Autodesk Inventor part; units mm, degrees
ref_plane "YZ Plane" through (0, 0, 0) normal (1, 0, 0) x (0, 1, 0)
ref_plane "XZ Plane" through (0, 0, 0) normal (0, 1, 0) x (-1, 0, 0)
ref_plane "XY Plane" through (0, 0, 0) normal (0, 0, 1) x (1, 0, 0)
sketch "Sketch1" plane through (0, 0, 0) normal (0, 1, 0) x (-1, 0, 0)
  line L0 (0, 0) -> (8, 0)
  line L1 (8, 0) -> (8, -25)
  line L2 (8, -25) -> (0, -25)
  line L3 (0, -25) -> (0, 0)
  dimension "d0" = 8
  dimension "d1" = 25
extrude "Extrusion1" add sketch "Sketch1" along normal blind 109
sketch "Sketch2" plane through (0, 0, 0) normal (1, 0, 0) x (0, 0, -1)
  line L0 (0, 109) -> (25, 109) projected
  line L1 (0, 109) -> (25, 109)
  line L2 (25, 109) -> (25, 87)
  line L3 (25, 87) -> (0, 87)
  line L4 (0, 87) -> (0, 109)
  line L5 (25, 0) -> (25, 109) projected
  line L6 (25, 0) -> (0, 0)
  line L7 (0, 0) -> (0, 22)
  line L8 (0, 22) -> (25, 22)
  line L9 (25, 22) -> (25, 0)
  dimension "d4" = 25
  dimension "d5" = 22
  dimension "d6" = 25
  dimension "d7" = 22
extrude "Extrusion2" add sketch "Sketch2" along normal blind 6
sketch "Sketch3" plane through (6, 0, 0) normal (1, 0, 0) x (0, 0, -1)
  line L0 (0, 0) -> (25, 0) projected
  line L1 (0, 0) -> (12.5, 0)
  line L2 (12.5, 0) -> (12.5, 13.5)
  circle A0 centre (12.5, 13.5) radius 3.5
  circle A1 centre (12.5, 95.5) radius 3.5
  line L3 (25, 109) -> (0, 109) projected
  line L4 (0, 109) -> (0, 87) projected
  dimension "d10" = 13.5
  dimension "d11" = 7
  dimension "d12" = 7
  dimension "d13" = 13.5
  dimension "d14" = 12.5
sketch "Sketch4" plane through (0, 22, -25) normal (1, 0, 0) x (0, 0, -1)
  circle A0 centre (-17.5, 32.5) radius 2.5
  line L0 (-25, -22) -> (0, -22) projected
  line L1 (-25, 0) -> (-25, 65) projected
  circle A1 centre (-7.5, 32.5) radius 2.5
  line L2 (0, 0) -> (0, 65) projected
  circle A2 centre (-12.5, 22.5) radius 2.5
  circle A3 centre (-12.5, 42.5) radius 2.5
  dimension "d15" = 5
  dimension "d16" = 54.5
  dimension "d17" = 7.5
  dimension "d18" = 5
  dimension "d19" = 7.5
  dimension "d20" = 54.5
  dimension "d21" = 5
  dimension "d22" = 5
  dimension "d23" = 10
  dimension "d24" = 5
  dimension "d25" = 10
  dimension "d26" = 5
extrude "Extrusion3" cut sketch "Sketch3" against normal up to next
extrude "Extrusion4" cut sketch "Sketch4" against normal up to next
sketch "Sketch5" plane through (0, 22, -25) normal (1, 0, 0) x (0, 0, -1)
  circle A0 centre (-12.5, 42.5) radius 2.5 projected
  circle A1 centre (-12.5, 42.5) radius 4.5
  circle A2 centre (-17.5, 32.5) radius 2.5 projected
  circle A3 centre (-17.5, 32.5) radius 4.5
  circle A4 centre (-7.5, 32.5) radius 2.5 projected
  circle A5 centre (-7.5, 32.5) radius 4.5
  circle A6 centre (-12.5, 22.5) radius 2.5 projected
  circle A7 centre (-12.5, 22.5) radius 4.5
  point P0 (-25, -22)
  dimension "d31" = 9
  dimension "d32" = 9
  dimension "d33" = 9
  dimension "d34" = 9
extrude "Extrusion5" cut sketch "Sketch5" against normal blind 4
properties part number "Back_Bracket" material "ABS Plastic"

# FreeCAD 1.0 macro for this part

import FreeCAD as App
import Part
import Sketcher
from FreeCAD import Vector

doc = App.newDocument("Part")
body = doc.addObject("PartDesign::Body", "Body")

# Sketch on XZ plane
sketch1 = doc.addObject("Sketcher::SketchObject", "Sketch")
body.addObject(sketch1)
sketch1.AttachmentSupport = (doc.XZ_Plane, [""])
sketch1.MapMode = "FlatFace"
sketch1.addGeometry([
    Part.LineSegment(Vector(-8, 0, 0), Vector(0, 0, 0)),
    Part.LineSegment(Vector(0, 0, 0), Vector(0, -25, 0)),
    Part.LineSegment(Vector(0, -25, 0), Vector(-8, -25, 0)),
    Part.LineSegment(Vector(-8, -25, 0), Vector(-8, 0, 0)),
], False)
sketch1.addConstraint([
    Sketcher.Constraint("Coincident", 0, 2, 1, 1),
    Sketcher.Constraint("Coincident", 1, 2, 2, 1),
    Sketcher.Constraint("Coincident", 2, 2, 3, 1),
    Sketcher.Constraint("Coincident", 3, 2, 0, 1),
    Sketcher.Constraint("Horizontal", 0),
    Sketcher.Constraint("Vertical", 1),
    Sketcher.Constraint("Horizontal", 2),
    Sketcher.Constraint("Vertical", 3),
    Sketcher.Constraint("Coincident", 0, 2, -1, 1),
    Sketcher.Constraint("DistanceX", 0, 1, 0, 2, 8.0),
    Sketcher.Constraint("DistanceY", 1, 2, 1, 1, 25.0),
])
pad1 = doc.addObject("PartDesign::Pad", "Pad")
body.addObject(pad1)
pad1.Profile = sketch1
pad1.Length = 109
pad1.Reversed = True

# Sketch on YZ plane
sketch2 = doc.addObject("Sketcher::SketchObject", "Sketch001")
body.addObject(sketch2)
sketch2.AttachmentSupport = (doc.YZ_Plane, [""])
sketch2.MapMode = "FlatFace"
sketch2.addGeometry([
    Part.LineSegment(Vector(0, -25, 0), Vector(22, -25, 0)),  # 0
    Part.LineSegment(Vector(22, -25, 0), Vector(22, 0, 0)),  # 1
    Part.LineSegment(Vector(22, 0, 0), Vector(0, 0, 0)),  # 2
    Part.LineSegment(Vector(0, 0, 0), Vector(0, -25, 0)),  # 3
    Part.LineSegment(Vector(109, -25, 0), Vector(109, 0, 0)),  # 4
    Part.LineSegment(Vector(109, 0, 0), Vector(87, 0, 0)),  # 5
    Part.LineSegment(Vector(87, 0, 0), Vector(87, -25, 0)),  # 6
    Part.LineSegment(Vector(87, -25, 0), Vector(109, -25, 0)),  # 7
], False)
sketch2.addConstraint([
    Sketcher.Constraint("Coincident", 0, 2, 1, 1),
    Sketcher.Constraint("Coincident", 1, 2, 2, 1),
    Sketcher.Constraint("Coincident", 2, 2, 3, 1),
    Sketcher.Constraint("Coincident", 3, 2, 0, 1),
    Sketcher.Constraint("Coincident", 4, 2, 5, 1),
    Sketcher.Constraint("Coincident", 5, 2, 6, 1),
    Sketcher.Constraint("Coincident", 6, 2, 7, 1),
    Sketcher.Constraint("Coincident", 7, 2, 4, 1),
    Sketcher.Constraint("Horizontal", 0),
    Sketcher.Constraint("Vertical", 1),
    Sketcher.Constraint("Horizontal", 2),
    Sketcher.Constraint("Vertical", 3),
    Sketcher.Constraint("Vertical", 4),
    Sketcher.Constraint("Horizontal", 5),
    Sketcher.Constraint("Vertical", 6),
    Sketcher.Constraint("Horizontal", 7),
    Sketcher.Constraint("Coincident", 2, 2, -1, 1),
    Sketcher.Constraint("PointOnObject", 4, 2, -1),
    Sketcher.Constraint("Horizontal", 3, 2, 6, 2),
    Sketcher.Constraint("Equal", 2, 5),
    Sketcher.Constraint("DistanceX", 0, 1, 0, 2, 22.0),
    Sketcher.Constraint("DistanceY", 1, 1, 1, 2, 25.0),
    Sketcher.Constraint("DistanceX", -1, 1, 4, 2, 109.0),
])
pad2 = doc.addObject("PartDesign::Pad", "Pad001")
body.addObject(pad2)
pad2.Profile = sketch2
pad2.Length = 6

# Sketch on YZ plane
sketch3 = doc.addObject("Sketcher::SketchObject", "Sketch002")
body.addObject(sketch3)
sketch3.AttachmentSupport = (doc.YZ_Plane, [""])
sketch3.MapMode = "FlatFace"
sketch3.AttachmentOffset = App.Placement(Vector(0, 0, 6), App.Rotation())
sketch3.addGeometry([
    Part.Circle(Vector(13.5, -12.5, 0), Vector(0, 0, 1), 3.5),
    Part.Circle(Vector(95.5, -12.5, 0), Vector(0, 0, 1), 3.5),
], False)
sketch3.addConstraint([
    Sketcher.Constraint("Equal", 0, 1),
    Sketcher.Constraint("Horizontal", 0, 3, 1, 3),
    Sketcher.Constraint("Diameter", 0, 7.0),
    Sketcher.Constraint("DistanceX", -1, 1, 0, 3, 13.5),
    Sketcher.Constraint("DistanceY", 0, 3, -1, 1, 12.5),
    Sketcher.Constraint("DistanceX", 0, 3, 1, 3, 82.0),
])
pocket1 = doc.addObject("PartDesign::Pocket", "Pocket")
body.addObject(pocket1)
pocket1.Profile = sketch3
pocket1.Length = 14

# Sketch on YZ plane
sketch4 = doc.addObject("Sketcher::SketchObject", "Sketch003")
body.addObject(sketch4)
sketch4.AttachmentSupport = (doc.YZ_Plane, [""])
sketch4.MapMode = "FlatFace"
sketch4.addGeometry([
    Part.Circle(Vector(54.5, -7.5, 0), Vector(0, 0, 1), 2.5),
    Part.Circle(Vector(54.5, -17.5, 0), Vector(0, 0, 1), 2.5),
    Part.Circle(Vector(44.5, -12.5, 0), Vector(0, 0, 1), 2.5),
    Part.Circle(Vector(64.5, -12.5, 0), Vector(0, 0, 1), 2.5),
], False)
sketch4.addConstraint([
    Sketcher.Constraint("Equal", 0, 1),
    Sketcher.Constraint("Equal", 1, 2),
    Sketcher.Constraint("Equal", 2, 3),
    Sketcher.Constraint("Horizontal", 2, 3, 3, 3),
    Sketcher.Constraint("Vertical", 0, 3, 1, 3),
    Sketcher.Constraint("Diameter", 0, 5.0),
    Sketcher.Constraint("DistanceY", 1, 3, 0, 3, 10.0),
    Sketcher.Constraint("DistanceX", 2, 3, 0, 3, 10.0),
    Sketcher.Constraint("DistanceY", 2, 3, 0, 3, 5.0),
    Sketcher.Constraint("DistanceX", 0, 3, 3, 3, 10.0),
    Sketcher.Constraint("DistanceX", -1, 1, 0, 3, 54.5),
    Sketcher.Constraint("DistanceY", 0, 3, -1, 1, 7.5),
])
pocket2 = doc.addObject("PartDesign::Pocket", "Pocket001")
body.addObject(pocket2)
pocket2.Profile = sketch4
pocket2.Type = "UpToFirst"

# Sketch on YZ plane
sketch5 = doc.addObject("Sketcher::SketchObject", "Sketch004")
body.addObject(sketch5)
sketch5.AttachmentSupport = (doc.YZ_Plane, [""])
sketch5.MapMode = "FlatFace"
sketch5.addGeometry([
    Part.Circle(Vector(64.5, -12.5, 0), Vector(0, 0, 1), 4.5),  # 0
    Part.Circle(Vector(64.5, -12.5, 0), Vector(0, 0, 1), 2.5),  # 1
    Part.Circle(Vector(54.5, -7.5, 0), Vector(0, 0, 1), 4.5),  # 2
    Part.Circle(Vector(54.5, -7.5, 0), Vector(0, 0, 1), 2.5),  # 3
    Part.Circle(Vector(54.5, -17.5, 0), Vector(0, 0, 1), 4.5),  # 4
    Part.Circle(Vector(54.5, -17.5, 0), Vector(0, 0, 1), 2.5),  # 5
    Part.Circle(Vector(44.5, -12.5, 0), Vector(0, 0, 1), 4.5),  # 6
    Part.Circle(Vector(44.5, -12.5, 0), Vector(0, 0, 1), 2.5),  # 7
], False)
sketch5.addConstraint([
    Sketcher.Constraint("Coincident", 1, 3, 0, 3),
    Sketcher.Constraint("Coincident", 3, 3, 2, 3),
    Sketcher.Constraint("Coincident", 5, 3, 4, 3),
    Sketcher.Constraint("Coincident", 7, 3, 6, 3),
    Sketcher.Constraint("Equal", 0, 2),
    Sketcher.Constraint("Equal", 1, 3),
    Sketcher.Constraint("Equal", 2, 4),
    Sketcher.Constraint("Equal", 3, 5),
    Sketcher.Constraint("Equal", 4, 6),
    Sketcher.Constraint("Equal", 5, 7),
    Sketcher.Constraint("Horizontal", 1, 3, 6, 3),
    Sketcher.Constraint("Vertical", 3, 3, 4, 3),
    Sketcher.Constraint("Diameter", 0, 9.0),
    Sketcher.Constraint("Diameter", 1, 5.0),
    Sketcher.Constraint("DistanceX", 2, 3, 0, 3, 10.0),
    Sketcher.Constraint("DistanceY", 0, 3, 2, 3, 5.0),
    Sketcher.Constraint("DistanceY", 4, 3, 2, 3, 10.0),
    Sketcher.Constraint("DistanceX", 6, 3, 2, 3, 10.0),
    Sketcher.Constraint("DistanceX", -1, 1, 0, 3, 64.5),
    Sketcher.Constraint("DistanceY", 0, 3, -1, 1, 12.5),
])
pocket3 = doc.addObject("PartDesign::Pocket", "Pocket002")
body.addObject(pocket3)
pocket3.Profile = sketch5
pocket3.Length = 4

doc.recompute()
